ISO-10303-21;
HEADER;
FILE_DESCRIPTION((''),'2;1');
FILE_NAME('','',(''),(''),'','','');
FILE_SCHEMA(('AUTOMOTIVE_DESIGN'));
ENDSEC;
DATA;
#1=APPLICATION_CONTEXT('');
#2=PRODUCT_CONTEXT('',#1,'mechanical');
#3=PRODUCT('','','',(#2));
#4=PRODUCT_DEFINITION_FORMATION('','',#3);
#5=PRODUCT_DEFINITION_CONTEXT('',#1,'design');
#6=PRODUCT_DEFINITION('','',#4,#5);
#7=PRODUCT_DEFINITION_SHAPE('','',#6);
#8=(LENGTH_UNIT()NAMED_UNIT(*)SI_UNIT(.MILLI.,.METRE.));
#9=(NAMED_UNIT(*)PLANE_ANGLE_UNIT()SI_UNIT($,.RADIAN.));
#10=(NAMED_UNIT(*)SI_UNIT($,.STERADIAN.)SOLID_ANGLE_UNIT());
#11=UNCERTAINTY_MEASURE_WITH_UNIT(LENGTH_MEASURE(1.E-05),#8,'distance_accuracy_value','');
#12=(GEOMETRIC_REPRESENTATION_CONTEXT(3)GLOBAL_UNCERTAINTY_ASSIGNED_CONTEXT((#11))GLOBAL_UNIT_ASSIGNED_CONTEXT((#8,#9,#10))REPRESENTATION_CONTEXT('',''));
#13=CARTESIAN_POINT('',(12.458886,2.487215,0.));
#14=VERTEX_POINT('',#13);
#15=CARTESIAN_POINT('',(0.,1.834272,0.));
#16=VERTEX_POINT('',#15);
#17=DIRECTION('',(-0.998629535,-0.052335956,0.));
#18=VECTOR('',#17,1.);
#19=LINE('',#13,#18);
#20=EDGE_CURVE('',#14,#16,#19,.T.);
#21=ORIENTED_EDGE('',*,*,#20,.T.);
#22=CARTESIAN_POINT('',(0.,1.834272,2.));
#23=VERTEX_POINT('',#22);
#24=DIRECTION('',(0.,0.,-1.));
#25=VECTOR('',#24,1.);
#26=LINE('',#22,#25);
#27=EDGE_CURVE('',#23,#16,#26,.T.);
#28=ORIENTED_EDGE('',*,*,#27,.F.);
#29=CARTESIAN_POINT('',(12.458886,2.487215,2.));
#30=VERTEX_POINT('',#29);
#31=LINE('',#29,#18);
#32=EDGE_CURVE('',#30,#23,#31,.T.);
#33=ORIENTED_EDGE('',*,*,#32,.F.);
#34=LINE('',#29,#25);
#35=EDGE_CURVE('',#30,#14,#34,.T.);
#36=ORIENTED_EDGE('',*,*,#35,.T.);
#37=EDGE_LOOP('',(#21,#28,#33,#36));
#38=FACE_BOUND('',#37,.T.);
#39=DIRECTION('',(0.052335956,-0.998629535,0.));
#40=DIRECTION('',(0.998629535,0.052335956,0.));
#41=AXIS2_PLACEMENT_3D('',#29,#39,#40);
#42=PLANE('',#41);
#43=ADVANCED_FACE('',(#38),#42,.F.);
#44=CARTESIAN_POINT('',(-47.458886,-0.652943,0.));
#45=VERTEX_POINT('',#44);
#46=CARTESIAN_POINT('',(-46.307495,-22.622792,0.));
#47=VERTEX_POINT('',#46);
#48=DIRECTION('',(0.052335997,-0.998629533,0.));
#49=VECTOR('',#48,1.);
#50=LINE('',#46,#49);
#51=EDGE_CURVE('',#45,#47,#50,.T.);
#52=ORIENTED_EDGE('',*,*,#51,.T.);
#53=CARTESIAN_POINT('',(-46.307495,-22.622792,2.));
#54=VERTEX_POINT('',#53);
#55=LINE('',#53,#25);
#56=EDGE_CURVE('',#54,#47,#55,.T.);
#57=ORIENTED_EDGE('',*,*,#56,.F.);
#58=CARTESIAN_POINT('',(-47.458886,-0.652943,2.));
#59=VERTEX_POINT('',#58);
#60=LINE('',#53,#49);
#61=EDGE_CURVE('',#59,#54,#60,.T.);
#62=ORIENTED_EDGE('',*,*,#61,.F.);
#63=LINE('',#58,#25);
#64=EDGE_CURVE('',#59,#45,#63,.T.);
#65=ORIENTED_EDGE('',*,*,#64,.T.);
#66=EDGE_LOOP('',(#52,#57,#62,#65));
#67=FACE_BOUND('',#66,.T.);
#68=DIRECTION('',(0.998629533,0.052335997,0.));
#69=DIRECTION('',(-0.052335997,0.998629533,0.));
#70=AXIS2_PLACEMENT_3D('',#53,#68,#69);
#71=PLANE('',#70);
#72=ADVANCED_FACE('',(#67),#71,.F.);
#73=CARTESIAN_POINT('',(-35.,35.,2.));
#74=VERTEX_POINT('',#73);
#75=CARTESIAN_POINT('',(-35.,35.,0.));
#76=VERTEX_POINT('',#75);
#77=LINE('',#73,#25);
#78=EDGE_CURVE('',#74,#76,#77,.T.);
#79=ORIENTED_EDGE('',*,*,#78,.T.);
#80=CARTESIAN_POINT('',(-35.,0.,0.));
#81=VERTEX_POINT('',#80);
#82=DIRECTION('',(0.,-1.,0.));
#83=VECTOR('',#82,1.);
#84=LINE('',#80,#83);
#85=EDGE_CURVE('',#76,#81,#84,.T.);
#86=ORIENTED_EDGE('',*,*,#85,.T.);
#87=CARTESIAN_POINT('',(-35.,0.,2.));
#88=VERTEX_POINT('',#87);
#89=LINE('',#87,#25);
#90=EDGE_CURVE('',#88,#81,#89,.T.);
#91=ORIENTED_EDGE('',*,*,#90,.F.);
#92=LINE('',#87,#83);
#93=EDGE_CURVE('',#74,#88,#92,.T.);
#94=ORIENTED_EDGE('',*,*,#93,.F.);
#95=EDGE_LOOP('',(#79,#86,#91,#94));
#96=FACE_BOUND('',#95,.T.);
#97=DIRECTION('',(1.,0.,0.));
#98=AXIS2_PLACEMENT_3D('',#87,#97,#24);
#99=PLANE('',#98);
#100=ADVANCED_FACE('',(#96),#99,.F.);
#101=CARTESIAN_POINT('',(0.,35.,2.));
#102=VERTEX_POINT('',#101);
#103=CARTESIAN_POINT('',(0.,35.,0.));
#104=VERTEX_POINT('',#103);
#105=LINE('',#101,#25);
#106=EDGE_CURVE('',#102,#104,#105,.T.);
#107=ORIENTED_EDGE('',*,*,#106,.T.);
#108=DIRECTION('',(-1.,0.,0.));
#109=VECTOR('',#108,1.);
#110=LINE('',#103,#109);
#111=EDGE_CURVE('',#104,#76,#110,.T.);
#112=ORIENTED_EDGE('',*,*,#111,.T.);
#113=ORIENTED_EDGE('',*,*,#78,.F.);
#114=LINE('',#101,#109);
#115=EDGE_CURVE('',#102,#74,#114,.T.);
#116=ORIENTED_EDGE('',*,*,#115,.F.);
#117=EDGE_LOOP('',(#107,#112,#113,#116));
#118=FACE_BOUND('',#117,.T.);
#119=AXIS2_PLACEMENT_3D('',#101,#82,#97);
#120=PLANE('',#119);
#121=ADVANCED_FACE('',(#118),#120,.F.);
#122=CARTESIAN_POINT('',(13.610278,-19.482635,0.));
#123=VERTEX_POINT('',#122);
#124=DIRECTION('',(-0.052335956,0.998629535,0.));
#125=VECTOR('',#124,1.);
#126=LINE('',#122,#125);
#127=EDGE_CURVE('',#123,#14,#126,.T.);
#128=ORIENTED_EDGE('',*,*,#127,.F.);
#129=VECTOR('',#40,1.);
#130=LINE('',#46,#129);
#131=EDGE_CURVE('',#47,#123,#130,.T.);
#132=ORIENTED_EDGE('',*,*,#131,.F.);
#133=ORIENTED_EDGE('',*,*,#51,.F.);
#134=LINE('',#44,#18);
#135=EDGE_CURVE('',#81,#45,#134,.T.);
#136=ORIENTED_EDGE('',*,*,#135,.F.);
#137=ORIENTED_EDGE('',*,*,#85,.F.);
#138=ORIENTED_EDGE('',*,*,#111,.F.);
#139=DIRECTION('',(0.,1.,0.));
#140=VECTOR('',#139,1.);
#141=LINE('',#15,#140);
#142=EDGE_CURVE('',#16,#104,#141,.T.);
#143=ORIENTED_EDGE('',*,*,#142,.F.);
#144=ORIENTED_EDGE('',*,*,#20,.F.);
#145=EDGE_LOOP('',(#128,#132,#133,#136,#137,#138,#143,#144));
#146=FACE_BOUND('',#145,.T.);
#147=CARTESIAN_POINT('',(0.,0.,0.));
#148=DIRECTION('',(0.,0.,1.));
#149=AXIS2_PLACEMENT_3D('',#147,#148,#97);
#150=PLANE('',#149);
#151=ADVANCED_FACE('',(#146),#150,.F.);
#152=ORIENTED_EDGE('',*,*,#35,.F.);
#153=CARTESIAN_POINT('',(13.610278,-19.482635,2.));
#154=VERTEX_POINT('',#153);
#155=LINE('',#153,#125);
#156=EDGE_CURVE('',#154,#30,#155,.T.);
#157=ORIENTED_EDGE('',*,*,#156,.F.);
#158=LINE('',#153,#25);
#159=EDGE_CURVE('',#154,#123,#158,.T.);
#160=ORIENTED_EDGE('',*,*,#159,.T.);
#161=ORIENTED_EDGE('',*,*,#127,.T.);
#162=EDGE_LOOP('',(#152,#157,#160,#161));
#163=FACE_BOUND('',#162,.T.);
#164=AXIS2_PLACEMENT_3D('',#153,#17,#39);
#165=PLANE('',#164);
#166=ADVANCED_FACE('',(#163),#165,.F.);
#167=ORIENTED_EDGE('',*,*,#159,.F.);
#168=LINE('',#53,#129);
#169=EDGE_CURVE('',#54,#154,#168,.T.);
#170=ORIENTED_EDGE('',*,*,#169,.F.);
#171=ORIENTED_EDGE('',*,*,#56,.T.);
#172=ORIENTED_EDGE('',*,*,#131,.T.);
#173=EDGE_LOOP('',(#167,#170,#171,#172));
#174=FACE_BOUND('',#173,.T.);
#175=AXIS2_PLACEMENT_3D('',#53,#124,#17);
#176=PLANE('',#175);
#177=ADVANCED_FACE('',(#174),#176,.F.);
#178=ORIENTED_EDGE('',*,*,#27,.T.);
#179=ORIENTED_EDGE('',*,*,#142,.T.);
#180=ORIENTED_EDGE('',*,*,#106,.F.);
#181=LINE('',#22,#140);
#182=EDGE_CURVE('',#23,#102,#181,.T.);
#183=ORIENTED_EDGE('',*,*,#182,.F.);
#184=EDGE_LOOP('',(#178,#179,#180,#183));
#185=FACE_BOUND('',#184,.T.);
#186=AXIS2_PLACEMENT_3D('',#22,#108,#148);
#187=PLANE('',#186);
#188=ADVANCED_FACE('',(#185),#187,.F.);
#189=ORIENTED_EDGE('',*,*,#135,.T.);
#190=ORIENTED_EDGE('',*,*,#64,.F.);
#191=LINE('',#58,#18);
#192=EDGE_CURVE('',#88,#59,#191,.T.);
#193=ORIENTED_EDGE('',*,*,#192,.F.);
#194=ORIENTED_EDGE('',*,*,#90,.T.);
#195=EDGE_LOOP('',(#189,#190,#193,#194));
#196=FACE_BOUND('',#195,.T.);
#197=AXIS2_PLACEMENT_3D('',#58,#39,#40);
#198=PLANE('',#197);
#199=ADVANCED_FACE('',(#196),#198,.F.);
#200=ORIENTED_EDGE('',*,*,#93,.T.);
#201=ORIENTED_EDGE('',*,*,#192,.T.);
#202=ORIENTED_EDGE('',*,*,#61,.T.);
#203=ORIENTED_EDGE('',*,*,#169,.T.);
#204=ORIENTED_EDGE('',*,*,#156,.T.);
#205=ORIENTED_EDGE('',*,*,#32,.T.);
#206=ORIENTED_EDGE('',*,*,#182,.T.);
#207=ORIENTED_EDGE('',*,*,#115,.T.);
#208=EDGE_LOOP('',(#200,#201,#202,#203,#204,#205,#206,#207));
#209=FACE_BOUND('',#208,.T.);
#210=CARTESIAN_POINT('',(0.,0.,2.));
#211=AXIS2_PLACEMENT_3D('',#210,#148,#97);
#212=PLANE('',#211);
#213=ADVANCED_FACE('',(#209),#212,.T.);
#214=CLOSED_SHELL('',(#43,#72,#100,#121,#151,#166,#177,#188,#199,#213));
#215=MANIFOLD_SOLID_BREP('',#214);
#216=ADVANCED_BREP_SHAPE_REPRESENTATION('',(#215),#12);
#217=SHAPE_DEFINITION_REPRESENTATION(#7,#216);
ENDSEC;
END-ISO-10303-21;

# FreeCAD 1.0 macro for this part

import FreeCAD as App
import Part
import Sketcher

V = App.Vector
Q = App.Units.Quantity


def add_polygon(sketch, points):
    """Adds a closed chain of lines whose ends are joined by coincident constraints."""
    first, n = sketch.GeometryCount, len(points)
    for a, b in zip(points, points[1:] + points[:1]):
        sketch.addGeometry(Part.LineSegment(App.Vector(*a, 0), App.Vector(*b, 0)), False)
    for i in range(n):
        sketch.addConstraint(Sketcher.Constraint("Coincident", first + i, 2, first + (i + 1) % n, 1))

doc = App.newDocument("Part")
body = doc.addObject("PartDesign::Body", "Body")

sketch1 = body.newObject("Sketcher::SketchObject", "Sketch")
sketch1.AttachmentSupport = (doc.getObject("XY_Plane"), [""])
sketch1.MapMode = "FlatFace"
add_polygon(sketch1, [(0, 2), (0, 35), (-35, 35), (-35, 0), (-47, -1), (-46, -23), (14, -19), (12, 2)])
sketch1.addConstraint([
    Sketcher.Constraint("Vertical", 0),
    Sketcher.Constraint("Horizontal", 1),
    Sketcher.Constraint("Vertical", 2),
    Sketcher.Constraint("PointOnObject", 0, 2, -2),
    Sketcher.Constraint("PointOnObject", 2, 2, -1),
    Sketcher.Constraint("Perpendicular", 3, 4),
    Sketcher.Constraint("Perpendicular", 4, 5),
    Sketcher.Constraint("Perpendicular", 5, 6),
    Sketcher.Constraint("Perpendicular", 6, 7),
    Sketcher.Constraint("Equal", 1, 2),
    Sketcher.Constraint("Equal", 4, 6),
    Sketcher.Constraint("Equal", 3, 7),
    Sketcher.Constraint("DistanceX", 1, 2, 1, 1, 35.0),
    Sketcher.Constraint("Angle", 3, Q("-177 deg")),
    Sketcher.Constraint("Distance", 4, 22.0),
    Sketcher.Constraint("Distance", 5, 60.0),
])
pad1 = body.newObject("PartDesign::Pad", "Pad")
pad1.Profile = sketch1
pad1.Length = 2

doc.recompute()
